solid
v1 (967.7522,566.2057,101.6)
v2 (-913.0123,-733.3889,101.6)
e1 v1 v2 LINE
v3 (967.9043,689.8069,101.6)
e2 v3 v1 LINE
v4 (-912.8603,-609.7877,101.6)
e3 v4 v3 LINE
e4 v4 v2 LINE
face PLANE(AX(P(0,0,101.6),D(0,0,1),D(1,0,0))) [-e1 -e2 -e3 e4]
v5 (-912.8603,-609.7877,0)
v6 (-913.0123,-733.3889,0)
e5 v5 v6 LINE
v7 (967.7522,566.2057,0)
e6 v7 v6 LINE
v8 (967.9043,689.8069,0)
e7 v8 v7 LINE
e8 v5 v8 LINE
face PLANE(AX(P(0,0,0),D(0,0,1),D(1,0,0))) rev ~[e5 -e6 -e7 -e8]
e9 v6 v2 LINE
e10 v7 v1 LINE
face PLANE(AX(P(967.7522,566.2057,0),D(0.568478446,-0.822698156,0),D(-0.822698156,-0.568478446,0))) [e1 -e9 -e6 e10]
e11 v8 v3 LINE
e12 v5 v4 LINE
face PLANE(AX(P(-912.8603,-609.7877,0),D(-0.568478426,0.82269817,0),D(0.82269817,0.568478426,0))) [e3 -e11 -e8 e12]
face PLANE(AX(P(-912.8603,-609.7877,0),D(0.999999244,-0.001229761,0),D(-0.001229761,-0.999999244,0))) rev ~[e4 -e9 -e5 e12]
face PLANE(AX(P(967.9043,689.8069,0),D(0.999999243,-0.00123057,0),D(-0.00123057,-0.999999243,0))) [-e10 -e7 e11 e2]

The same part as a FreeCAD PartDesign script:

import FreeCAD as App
import Part
import Sketcher
Q = App.Units.Quantity

doc = App.newDocument("Part")
params = doc.addObject("Spreadsheet::Sheet", "Params")
for row, (alias, value) in enumerate([
    ("pad1_length", "4 in"),
], start=1):
    params.set(f"A{row}", alias)
    params.set(f"B{row}", "=" + value)
    params.setAlias(f"B{row}", alias)

body = doc.addObject("PartDesign::Body", "Body")

# Sketch on XY plane
sketch1 = body.newObject("Sketcher::SketchObject", "Sketch")
sketch1.AttachmentSupport = (doc.getObject("XY_Plane"), [""])
sketch1.MapMode = "FlatFace"
sketch1.addGeometry(Part.LineSegment(App.Vector(967.9043, 689.8069, 0), App.Vector(-912.8603, -609.7877, 0)), False)
sketch1.addGeometry(Part.LineSegment(App.Vector(-912.8603, -609.7877, 0), App.Vector(-913.0123, -733.3889, 0)), False)
sketch1.addGeometry(Part.LineSegment(App.Vector(-913.0123, -733.3889, 0), App.Vector(967.7522, 566.2057, 0)), False)
sketch1.addGeometry(Part.LineSegment(App.Vector(967.7522, 566.2057, 0), App.Vector(967.9043, 689.8069, 0)), False)
sketch1.addConstraint(Sketcher.Constraint("Coincident", 0, 2, 1, 1))
sketch1.addConstraint(Sketcher.Constraint("Coincident", 1, 2, 2, 1))
sketch1.addConstraint(Sketcher.Constraint("Coincident", 2, 2, 3, 1))
sketch1.addConstraint(Sketcher.Constraint("Coincident", 3, 2, 0, 1))
sketch1.addConstraint(Sketcher.Constraint("Parallel", 0, 2))
sketch1.addConstraint(Sketcher.Constraint("Parallel", 1, 3))
sketch1.addConstraint(Sketcher.Constraint("Angle", 1, Q("-90.0705 deg")))
sketch1.addConstraint(Sketcher.Constraint("Distance", 1, Q("4.8662 in")))
sketch1.addConstraint(Sketcher.Constraint("DistanceY", 0, 2, -1, 1, Q("24.0074 in")))
sketch1.addConstraint(Sketcher.Constraint("Distance", 0, Q("2286.093 mm")))
sketch1.addConstraint(Sketcher.Constraint("DistanceX", 0, 2, -1, 1, Q("912.8603 mm")))
sketch1.addConstraint(Sketcher.Constraint("DistanceX", -1, 1, 2, 2, Q("967.7522 mm")))
pad1 = body.newObject("PartDesign::Pad", "Pad")
pad1.Profile = sketch1
pad1.setExpression("Length", "Params.pad1_length")

doc.recompute()
